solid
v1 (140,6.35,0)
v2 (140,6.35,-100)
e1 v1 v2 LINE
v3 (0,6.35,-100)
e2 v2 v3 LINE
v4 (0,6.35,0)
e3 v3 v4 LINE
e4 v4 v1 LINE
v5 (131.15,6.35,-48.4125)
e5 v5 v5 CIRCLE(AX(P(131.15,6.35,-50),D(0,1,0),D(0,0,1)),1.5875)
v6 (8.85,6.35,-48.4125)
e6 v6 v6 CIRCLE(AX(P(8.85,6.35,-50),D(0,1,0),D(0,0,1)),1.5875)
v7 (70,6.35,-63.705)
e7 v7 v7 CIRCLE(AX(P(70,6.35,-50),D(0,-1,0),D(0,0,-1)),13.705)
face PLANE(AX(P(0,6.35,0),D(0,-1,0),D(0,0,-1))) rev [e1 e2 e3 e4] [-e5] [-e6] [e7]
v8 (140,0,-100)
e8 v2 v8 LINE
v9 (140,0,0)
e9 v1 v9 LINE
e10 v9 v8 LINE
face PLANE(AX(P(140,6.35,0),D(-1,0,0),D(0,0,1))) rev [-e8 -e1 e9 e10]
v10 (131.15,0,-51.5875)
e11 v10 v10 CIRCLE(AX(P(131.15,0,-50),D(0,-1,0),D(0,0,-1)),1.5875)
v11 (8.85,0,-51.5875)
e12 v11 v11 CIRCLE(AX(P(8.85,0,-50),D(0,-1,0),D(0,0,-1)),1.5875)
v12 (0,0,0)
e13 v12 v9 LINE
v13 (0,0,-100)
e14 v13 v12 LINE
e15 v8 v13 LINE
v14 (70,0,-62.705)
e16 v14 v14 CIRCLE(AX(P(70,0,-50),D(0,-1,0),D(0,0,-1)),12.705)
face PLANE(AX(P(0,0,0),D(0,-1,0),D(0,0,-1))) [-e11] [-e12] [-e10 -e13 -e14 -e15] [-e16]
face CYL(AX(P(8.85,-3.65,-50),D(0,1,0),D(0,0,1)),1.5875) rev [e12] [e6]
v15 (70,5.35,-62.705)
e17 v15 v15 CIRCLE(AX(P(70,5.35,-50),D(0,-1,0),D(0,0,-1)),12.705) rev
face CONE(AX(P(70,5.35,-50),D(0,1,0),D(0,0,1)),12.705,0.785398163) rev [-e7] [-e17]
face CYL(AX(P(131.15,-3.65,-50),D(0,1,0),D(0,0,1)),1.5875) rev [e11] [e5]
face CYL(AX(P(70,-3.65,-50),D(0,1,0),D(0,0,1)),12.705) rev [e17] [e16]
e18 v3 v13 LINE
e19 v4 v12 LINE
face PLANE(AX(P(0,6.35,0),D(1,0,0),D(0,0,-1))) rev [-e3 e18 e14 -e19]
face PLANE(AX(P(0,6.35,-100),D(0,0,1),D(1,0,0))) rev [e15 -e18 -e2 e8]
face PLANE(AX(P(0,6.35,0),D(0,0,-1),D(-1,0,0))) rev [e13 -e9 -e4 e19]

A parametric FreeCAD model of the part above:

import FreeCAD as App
import Part
import Sketcher


def edges_at(feature, points):
    """Names of the edges that pass closest to the given points."""
    edges = feature.Shape.Edges
    near = lambda p: min(range(len(edges)), key=lambda i: edges[i].distToShape(Part.Vertex(*p))[0])
    return sorted({f"Edge{near(p) + 1}" for p in points})


def add_polygon(sketch, points):
    """Adds a closed chain of lines whose ends are joined by coincident constraints."""
    first, n = sketch.GeometryCount, len(points)
    for a, b in zip(points, points[1:] + points[:1]):
        sketch.addGeometry(Part.LineSegment(App.Vector(*a, 0), App.Vector(*b, 0)), False)
    for i in range(n):
        sketch.addConstraint(Sketcher.Constraint("Coincident", first + i, 2, first + (i + 1) % n, 1))

doc = App.newDocument("Part")
body = doc.addObject("PartDesign::Body", "Body")

sketch1 = body.newObject("Sketcher::SketchObject", "Sketch")
sketch1.AttachmentSupport = (doc.getObject("XZ_Plane"), [""])
sketch1.MapMode = "FlatFace"
add_polygon(sketch1, [(0, -100), (0, 0), (140, 0), (140, -100)])
sketch1.addConstraint(Sketcher.Constraint("Vertical", 0))
sketch1.addConstraint(Sketcher.Constraint("Horizontal", 1))
sketch1.addConstraint(Sketcher.Constraint("Vertical", 2))
sketch1.addConstraint(Sketcher.Constraint("Horizontal", 3))
sketch1.addConstraint(Sketcher.Constraint("Coincident", 0, 2, -1, 1))
sketch1.addConstraint(Sketcher.Constraint("DistanceX", 1, 1, 1, 2, 140.0))
sketch1.addConstraint(Sketcher.Constraint("DistanceY", 0, 1, 0, 2, 100.0))
pad1 = body.newObject("PartDesign::Pad", "Pad")
pad1.Profile = sketch1
pad1.Length = 6.35
pad1.Reversed = True

sketch2 = body.newObject("Sketcher::SketchObject", "Sketch001")
sketch2.AttachmentSupport = (doc.getObject("XZ_Plane"), [""])
sketch2.MapMode = "FlatFace"
sketch2.AttachmentOffset = App.Placement(App.Vector(0, 0, -6.35), App.Rotation())
sketch2.addGeometry(Part.Circle(App.Vector(70, -50, 0), App.Vector(0, 0, 1), 12.705), False)
sketch2.addConstraint(Sketcher.Constraint("Diameter", 0, 25.41))
sketch2.addConstraint(Sketcher.Constraint("DistanceX", -1, 1, 0, 3, 70.0))
sketch2.addConstraint(Sketcher.Constraint("DistanceY", 0, 3, -1, 1, 50.0))
pocket1 = body.newObject("PartDesign::Pocket", "Pocket")
pocket1.Profile = sketch2
pocket1.Length = 10
pocket1.Reversed = True

sketch3 = body.newObject("Sketcher::SketchObject", "Sketch002")
sketch3.AttachmentSupport = (doc.getObject("XZ_Plane"), [""])
sketch3.MapMode = "FlatFace"
sketch3.AttachmentOffset = App.Placement(App.Vector(0, 0, -6.35), App.Rotation())
sketch3.addGeometry(Part.Circle(App.Vector(8.85, -50, 0), App.Vector(0, 0, 1), 1.5875), False)
sketch3.addGeometry(Part.Circle(App.Vector(131.15, -50, 0), App.Vector(0, 0, 1), 1.5875), False)
sketch3.addConstraint(Sketcher.Constraint("Equal", 0, 1))
sketch3.addConstraint(Sketcher.Constraint("Horizontal", 0, 3, 1, 3))
sketch3.addConstraint(Sketcher.Constraint("Diameter", 0, 3.175))
sketch3.addConstraint(Sketcher.Constraint("DistanceY", 0, 3, -1, 1, 50.0))
sketch3.addConstraint(Sketcher.Constraint("DistanceX", 0, 3, 1, 3, 122.3))
sketch3.addConstraint(Sketcher.Constraint("DistanceX", -1, 1, 0, 3, 8.85))
pocket2 = body.newObject("PartDesign::Pocket", "Pocket001")
pocket2.Profile = sketch3
pocket2.Length = 10
pocket2.Reversed = True
doc.recompute()

chamfer = body.newObject("PartDesign::Chamfer", "Chamfer")
chamfer.Base = (pocket2, edges_at(pocket2, [(70, 6.35, -62.705)]))
chamfer.Size = 1

doc.recompute()
